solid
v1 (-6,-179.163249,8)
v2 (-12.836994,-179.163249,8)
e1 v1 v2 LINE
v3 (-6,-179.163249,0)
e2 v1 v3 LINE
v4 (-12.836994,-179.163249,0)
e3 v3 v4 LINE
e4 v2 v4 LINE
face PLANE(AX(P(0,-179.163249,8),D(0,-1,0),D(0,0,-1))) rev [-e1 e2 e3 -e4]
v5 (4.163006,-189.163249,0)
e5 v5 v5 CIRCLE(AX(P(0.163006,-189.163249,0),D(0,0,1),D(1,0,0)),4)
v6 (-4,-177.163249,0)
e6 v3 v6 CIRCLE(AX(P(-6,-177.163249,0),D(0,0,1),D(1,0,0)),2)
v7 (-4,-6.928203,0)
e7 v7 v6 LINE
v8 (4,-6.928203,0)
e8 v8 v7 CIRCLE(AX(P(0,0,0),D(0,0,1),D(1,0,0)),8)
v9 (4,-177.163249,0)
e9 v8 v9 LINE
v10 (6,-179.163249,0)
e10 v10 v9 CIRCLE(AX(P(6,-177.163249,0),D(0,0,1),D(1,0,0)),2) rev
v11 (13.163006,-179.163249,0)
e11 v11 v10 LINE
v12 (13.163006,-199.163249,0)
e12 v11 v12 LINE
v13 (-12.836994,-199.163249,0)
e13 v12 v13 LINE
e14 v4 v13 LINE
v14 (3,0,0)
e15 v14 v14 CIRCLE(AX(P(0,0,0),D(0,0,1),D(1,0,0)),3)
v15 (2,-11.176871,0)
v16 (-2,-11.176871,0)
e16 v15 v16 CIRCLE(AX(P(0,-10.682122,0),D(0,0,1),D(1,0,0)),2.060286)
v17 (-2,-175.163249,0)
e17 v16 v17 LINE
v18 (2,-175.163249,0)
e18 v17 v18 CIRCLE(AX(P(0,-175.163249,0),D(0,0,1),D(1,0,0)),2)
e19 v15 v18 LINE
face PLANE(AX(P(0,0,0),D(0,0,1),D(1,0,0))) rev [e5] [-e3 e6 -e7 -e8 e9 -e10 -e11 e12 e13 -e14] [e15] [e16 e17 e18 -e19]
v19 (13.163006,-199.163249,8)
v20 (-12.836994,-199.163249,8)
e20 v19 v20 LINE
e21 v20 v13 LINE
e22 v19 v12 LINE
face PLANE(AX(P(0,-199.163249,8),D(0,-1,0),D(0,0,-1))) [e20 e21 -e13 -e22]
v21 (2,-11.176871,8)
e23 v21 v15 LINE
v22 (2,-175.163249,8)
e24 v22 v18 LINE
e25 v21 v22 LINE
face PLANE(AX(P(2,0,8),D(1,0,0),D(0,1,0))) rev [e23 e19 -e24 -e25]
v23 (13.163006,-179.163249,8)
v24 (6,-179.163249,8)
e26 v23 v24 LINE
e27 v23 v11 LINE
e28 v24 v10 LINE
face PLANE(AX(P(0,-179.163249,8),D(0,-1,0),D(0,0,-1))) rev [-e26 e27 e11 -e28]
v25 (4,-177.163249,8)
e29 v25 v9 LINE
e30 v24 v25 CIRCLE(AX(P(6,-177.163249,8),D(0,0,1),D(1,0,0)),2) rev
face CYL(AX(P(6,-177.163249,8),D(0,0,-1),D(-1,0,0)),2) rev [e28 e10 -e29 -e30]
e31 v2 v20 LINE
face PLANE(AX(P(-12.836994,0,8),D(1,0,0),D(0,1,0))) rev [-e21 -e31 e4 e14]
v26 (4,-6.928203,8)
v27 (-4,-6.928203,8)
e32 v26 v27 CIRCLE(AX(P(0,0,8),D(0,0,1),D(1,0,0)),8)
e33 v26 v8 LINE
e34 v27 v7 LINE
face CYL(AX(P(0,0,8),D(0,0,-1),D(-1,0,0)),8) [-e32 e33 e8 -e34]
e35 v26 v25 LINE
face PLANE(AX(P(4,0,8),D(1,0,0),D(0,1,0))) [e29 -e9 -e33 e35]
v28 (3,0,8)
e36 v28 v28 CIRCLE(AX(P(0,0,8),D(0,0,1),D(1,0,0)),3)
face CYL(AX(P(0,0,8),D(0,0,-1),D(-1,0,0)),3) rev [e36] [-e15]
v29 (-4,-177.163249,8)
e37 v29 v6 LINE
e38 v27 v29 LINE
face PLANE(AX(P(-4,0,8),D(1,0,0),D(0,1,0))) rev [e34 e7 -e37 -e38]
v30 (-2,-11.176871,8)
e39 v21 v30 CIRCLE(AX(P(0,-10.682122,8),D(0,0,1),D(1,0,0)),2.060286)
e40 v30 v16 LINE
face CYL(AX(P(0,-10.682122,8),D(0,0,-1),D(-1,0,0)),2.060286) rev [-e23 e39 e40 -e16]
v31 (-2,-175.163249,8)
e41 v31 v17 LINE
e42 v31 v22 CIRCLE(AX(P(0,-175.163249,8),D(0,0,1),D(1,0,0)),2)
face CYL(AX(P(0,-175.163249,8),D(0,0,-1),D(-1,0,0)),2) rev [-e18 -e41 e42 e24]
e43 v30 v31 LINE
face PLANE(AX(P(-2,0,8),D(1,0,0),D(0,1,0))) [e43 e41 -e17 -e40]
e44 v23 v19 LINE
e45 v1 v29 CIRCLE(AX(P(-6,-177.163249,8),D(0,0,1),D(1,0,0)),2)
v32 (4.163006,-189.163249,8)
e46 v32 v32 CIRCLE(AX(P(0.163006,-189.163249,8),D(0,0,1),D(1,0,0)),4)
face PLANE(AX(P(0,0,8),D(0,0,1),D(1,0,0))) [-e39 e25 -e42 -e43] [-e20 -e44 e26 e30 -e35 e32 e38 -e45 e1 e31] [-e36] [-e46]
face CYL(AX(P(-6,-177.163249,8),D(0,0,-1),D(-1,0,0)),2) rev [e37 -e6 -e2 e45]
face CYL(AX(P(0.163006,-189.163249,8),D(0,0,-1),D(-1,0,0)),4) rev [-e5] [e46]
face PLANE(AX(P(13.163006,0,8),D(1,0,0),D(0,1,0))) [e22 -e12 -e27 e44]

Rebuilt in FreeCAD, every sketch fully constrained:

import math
import FreeCAD as App
import Part
import Sketcher

V = App.Vector

doc = App.newDocument("Part")
body = doc.addObject("PartDesign::Body", "Body")

# Sketch on XY plane
sketch1 = body.newObject("Sketcher::SketchObject", "Sketch")
sketch1.AttachmentSupport = (doc.getObject("XY_Plane"), [""])
sketch1.MapMode = "FlatFace"
sketch1.addGeometry(Part.LineSegment(V(13.2, -179.2, 0), V(6, -179.2, 0)), False)
sketch1.addGeometry(Part.ArcOfCircle(Part.Circle(V(6, -177.2, 0), V(0, 0, 1), 2), math.radians(180), math.radians(270)), False)
sketch1.addGeometry(Part.LineSegment(V(4, -177.2, 0), V(4, -6.9, 0)), False)
sketch1.addGeometry(Part.ArcOfCircle(Part.Circle(V(0, 0, 0), V(0, 0, 1), 8), math.radians(-60), math.radians(240)), False)
sketch1.addGeometry(Part.LineSegment(V(-4, -6.9, 0), V(-4, -177.2, 0)), False)
sketch1.addGeometry(Part.ArcOfCircle(Part.Circle(V(-6, -177.2, 0), V(0, 0, 1), 2), math.radians(-90), math.radians(0)), False)
sketch1.addGeometry(Part.LineSegment(V(-6, -179.2, 0), V(-12.8, -179.2, 0)), False)
sketch1.addGeometry(Part.LineSegment(V(-12.8, -179.2, 0), V(-12.8, -199.2, 0)), False)
sketch1.addGeometry(Part.LineSegment(V(-12.8, -199.2, 0), V(13.2, -199.2, 0)), False)
sketch1.addGeometry(Part.LineSegment(V(13.2, -199.2, 0), V(13.2, -179.2, 0)), False)
sketch1.addGeometry(Part.ArcOfCircle(Part.Circle(V(0, -175.2, 0), V(0, 0, 1), 2), math.radians(180), math.radians(360)), False)
sketch1.addGeometry(Part.LineSegment(V(-2, -175.2, 0), V(-2, -11.2, 0)), False)
sketch1.addGeometry(Part.ArcOfCircle(Part.Circle(V(0, -10.7, 0), V(0, 0, 1), 2.1), math.radians(-14), math.radians(194)), False)
sketch1.addGeometry(Part.LineSegment(V(2, -11.2, 0), V(2, -175.2, 0)), False)
sketch1.addGeometry(Part.Circle(V(0.2, -189.2, 0), V(0, 0, 1), 4), False)
sketch1.addGeometry(Part.Circle(V(0, 0, 0), V(0, 0, 1), 3), False)
sketch1.addConstraint(Sketcher.Constraint("Tangent", 0, 2, 1, 2))
sketch1.addConstraint(Sketcher.Constraint("Tangent", 1, 1, 2, 1))
sketch1.addConstraint(Sketcher.Constraint("Coincident", 2, 2, 3, 1))
sketch1.addConstraint(Sketcher.Constraint("Coincident", 3, 2, 4, 1))
sketch1.addConstraint(Sketcher.Constraint("Tangent", 4, 2, 5, 2))
sketch1.addConstraint(Sketcher.Constraint("Tangent", 5, 1, 6, 1))
sketch1.addConstraint(Sketcher.Constraint("Coincident", 6, 2, 7, 1))
sketch1.addConstraint(Sketcher.Constraint("Coincident", 7, 2, 8, 1))
sketch1.addConstraint(Sketcher.Constraint("Coincident", 8, 2, 9, 1))
sketch1.addConstraint(Sketcher.Constraint("Coincident", 9, 2, 0, 1))
sketch1.addConstraint(Sketcher.Constraint("Tangent", 10, 1, 11, 1))
sketch1.addConstraint(Sketcher.Constraint("Coincident", 11, 2, 12, 2))
sketch1.addConstraint(Sketcher.Constraint("Coincident", 12, 1, 13, 1))
sketch1.addConstraint(Sketcher.Constraint("Tangent", 13, 2, 10, 2))
sketch1.addConstraint(Sketcher.Constraint("Horizontal", 0))
sketch1.addConstraint(Sketcher.Constraint("Vertical", 2))
sketch1.addConstraint(Sketcher.Constraint("Vertical", 4))
sketch1.addConstraint(Sketcher.Constraint("Horizontal", 6))
sketch1.addConstraint(Sketcher.Constraint("Vertical", 7))
sketch1.addConstraint(Sketcher.Constraint("Horizontal", 8))
sketch1.addConstraint(Sketcher.Constraint("Vertical", 9))
sketch1.addConstraint(Sketcher.Constraint("Vertical", 11))
sketch1.addConstraint(Sketcher.Constraint("Vertical", 13))
sketch1.addConstraint(Sketcher.Constraint("Coincident", 3, 3, -1, 1))
sketch1.addConstraint(Sketcher.Constraint("Coincident", 15, 3, -1, 1))
sketch1.addConstraint(Sketcher.Constraint("Equal", 1, 5))
sketch1.addConstraint(Sketcher.Constraint("Equal", 5, 10))
sketch1.addConstraint(Sketcher.Constraint("Symmetric", 1, 3, 5, 3, -2))
sketch1.addConstraint(Sketcher.Constraint("Symmetric", 11, 2, 12, 1, -2))
sketch1.addConstraint(Sketcher.Constraint("Diameter", 14, 8.0))
sketch1.addConstraint(Sketcher.Constraint("Diameter", 15, 6.0))
sketch1.addConstraint(Sketcher.Constraint("Radius", 1, 2.0))
sketch1.addConstraint(Sketcher.Constraint("Radius", 3, 8.0))
sketch1.addConstraint(Sketcher.Constraint("DistanceX", 8, 1, 8, 2, 26.0))
sketch1.addConstraint(Sketcher.Constraint("DistanceY", 7, 2, 7, 1, 20.0))
sketch1.addConstraint(Sketcher.Constraint("DistanceX", -1, 1, 1, 3, 6.0))
sketch1.addConstraint(Sketcher.Constraint("DistanceY", 1, 3, 10, 3, 2.0))
sketch1.addConstraint(Sketcher.Constraint("DistanceY", 14, 3, 1, 3, 12.0))
sketch1.addConstraint(Sketcher.Constraint("DistanceX", 6, 2, 14, 3, 13.0))
sketch1.addConstraint(Sketcher.Constraint("Radius", 12, 2.060286))
sketch1.addConstraint(Sketcher.Constraint("DistanceY", 11, 1, 11, 2, 163.986378))
sketch1.addConstraint(Sketcher.Constraint("DistanceX", 0, 2, 0, 1, 7.163006))
sketch1.addConstraint(Sketcher.Constraint("DistanceY", 2, 1, 2, 2, 170.235046))
pad1 = body.newObject("PartDesign::Pad", "Pad")
pad1.Profile = sketch1
pad1.Length = 8

doc.recompute()
